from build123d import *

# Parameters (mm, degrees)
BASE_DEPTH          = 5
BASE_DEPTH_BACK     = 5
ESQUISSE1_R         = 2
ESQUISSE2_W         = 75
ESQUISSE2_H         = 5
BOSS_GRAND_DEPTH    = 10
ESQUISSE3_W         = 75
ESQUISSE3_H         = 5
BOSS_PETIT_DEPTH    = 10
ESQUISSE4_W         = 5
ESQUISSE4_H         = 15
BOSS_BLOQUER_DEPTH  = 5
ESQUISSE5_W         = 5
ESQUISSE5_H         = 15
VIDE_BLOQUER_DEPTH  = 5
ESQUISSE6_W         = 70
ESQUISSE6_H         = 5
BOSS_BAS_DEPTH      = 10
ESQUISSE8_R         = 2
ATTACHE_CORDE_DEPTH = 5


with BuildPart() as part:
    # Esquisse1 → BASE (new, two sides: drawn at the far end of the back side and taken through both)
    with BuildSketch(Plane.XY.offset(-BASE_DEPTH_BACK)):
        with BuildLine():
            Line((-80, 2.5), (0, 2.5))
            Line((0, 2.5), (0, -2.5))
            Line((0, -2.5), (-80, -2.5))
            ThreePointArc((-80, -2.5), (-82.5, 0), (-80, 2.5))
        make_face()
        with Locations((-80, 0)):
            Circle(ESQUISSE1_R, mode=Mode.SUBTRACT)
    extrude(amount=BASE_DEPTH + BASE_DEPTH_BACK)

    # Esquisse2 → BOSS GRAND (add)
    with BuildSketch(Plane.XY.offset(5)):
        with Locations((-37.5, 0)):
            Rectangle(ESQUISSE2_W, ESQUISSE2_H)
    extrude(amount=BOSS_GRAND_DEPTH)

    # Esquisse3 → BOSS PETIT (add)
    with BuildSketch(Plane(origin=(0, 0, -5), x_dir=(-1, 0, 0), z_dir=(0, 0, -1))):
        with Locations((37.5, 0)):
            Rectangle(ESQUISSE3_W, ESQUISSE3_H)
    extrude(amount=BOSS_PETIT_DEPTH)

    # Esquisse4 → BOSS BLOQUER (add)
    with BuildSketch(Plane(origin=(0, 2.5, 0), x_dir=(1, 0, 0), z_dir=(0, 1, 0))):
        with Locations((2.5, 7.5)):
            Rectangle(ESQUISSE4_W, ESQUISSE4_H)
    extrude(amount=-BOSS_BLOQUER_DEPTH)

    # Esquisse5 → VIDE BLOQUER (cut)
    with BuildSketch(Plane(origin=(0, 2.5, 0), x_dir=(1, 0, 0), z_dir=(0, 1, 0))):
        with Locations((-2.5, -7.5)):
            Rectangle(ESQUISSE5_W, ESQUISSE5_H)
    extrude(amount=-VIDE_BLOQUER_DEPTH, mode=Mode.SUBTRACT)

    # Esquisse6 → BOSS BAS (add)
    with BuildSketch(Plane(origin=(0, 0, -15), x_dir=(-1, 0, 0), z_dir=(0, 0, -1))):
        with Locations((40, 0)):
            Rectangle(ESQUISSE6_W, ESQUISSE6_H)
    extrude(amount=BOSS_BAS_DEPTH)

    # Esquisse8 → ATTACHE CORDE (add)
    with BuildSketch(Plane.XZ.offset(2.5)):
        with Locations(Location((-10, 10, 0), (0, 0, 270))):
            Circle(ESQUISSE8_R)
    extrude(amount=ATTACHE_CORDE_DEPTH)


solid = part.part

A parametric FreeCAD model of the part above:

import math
import FreeCAD as App
import Part
import Sketcher


def add_polygon(sketch, points):
    """Adds a closed chain of lines whose ends are joined by coincident constraints."""
    first, n = sketch.GeometryCount, len(points)
    for a, b in zip(points, points[1:] + points[:1]):
        sketch.addGeometry(Part.LineSegment(App.Vector(*a, 0), App.Vector(*b, 0)), False)
    for i in range(n):
        sketch.addConstraint(Sketcher.Constraint("Coincident", first + i, 2, first + (i + 1) % n, 1))

doc = App.newDocument("Part")
params = doc.addObject("Spreadsheet::Sheet", "Params")
for row, (alias, value) in enumerate([
    ("sketch1_diameter", "4 mm"),
    ("sketch1_radius", "2.5 mm"),
    ("sketch1_width", "80 mm"),
    ("pad1_length", "5 mm"),
    ("pad1_length2", "5 mm"),
    ("sketch2_width", "75 mm"),
    ("sketch2_height", "5 mm"),
    ("pad2_length", "10 mm"),
    ("sketch3_width", "75 mm"),
    ("sketch3_height", "5 mm"),
    ("pad3_length", "10 mm"),
    ("sketch4_width", "5 mm"),
    ("sketch4_height", "15 mm"),
    ("pad4_length", "5 mm"),
    ("sketch5_width", "5 mm"),
    ("sketch5_height", "15 mm"),
    ("pocket1_length", "5 mm"),
    ("sketch6_width", "70 mm"),
    ("sketch6_height", "5 mm"),
    ("pad5_length", "10 mm"),
    ("sketch7_diameter", "4 mm"),
    ("pad6_length", "5 mm"),
], start=1):
    params.set(f"A{row}", alias)
    params.set(f"B{row}", "=" + value)
    params.setAlias(f"B{row}", alias)

body = doc.addObject("PartDesign::Body", "Body")

# Sketch on XY plane
sketch1 = body.newObject("Sketcher::SketchObject", "Sketch")
sketch1.AttachmentSupport = (doc.getObject("XY_Plane"), [""])
sketch1.MapMode = "FlatFace"
sketch1.addGeometry([
    Part.LineSegment(App.Vector(0, 2.5, 0), App.Vector(-80, 2.5, 0)),  # 0
    Part.ArcOfCircle(Part.Circle(App.Vector(-80, 0, 0), App.Vector(0, 0, 1), 2.5), math.radians(90), math.radians(270)),  # 1
    Part.LineSegment(App.Vector(-80, -2.5, 0), App.Vector(0, -2.5, 0)),  # 2
    Part.LineSegment(App.Vector(0, -2.5, 0), App.Vector(0, 2.5, 0)),  # 3
    Part.Circle(App.Vector(-80, 0, 0), App.Vector(0, 0, 1), 2),  # 4
], False)
sketch1.addConstraint([
    Sketcher.Constraint("Tangent", 0, 2, 1, 1),
    Sketcher.Constraint("Tangent", 1, 2, 2, 1),
    Sketcher.Constraint("Coincident", 2, 2, 3, 1),
    Sketcher.Constraint("Coincident", 3, 2, 0, 1),
    Sketcher.Constraint("Horizontal", 0),
    Sketcher.Constraint("Horizontal", 2),
    Sketcher.Constraint("Vertical", 3),
    Sketcher.Constraint("Coincident", 4, 3, 1, 3),
    Sketcher.Constraint("Symmetric", 2, 2, 3, 2, -1, 1),
    Sketcher.Constraint("Diameter", 4, 4.0),
    Sketcher.Constraint("Radius", 1, 2.5),
    Sketcher.Constraint("DistanceX", 0, 2, 0, 1, 80.0),
])
sketch1.setExpression("Constraints[9]", "Params.sketch1_diameter")
sketch1.setExpression("Constraints[10]", "Params.sketch1_radius")
sketch1.setExpression("Constraints[11]", "Params.sketch1_width")
pad1 = body.newObject("PartDesign::Pad", "Pad")
pad1.Profile = sketch1
pad1.Type = "TwoLengths"
pad1.setExpression("Length", "Params.pad1_length")
pad1.setExpression("Length2", "Params.pad1_length2")

# Sketch on XY plane
sketch2 = body.newObject("Sketcher::SketchObject", "Sketch001")
sketch2.AttachmentSupport = (doc.getObject("XY_Plane"), [""])
sketch2.MapMode = "FlatFace"
sketch2.AttachmentOffset = App.Placement(App.Vector(0, 0, 5), App.Rotation())
add_polygon(sketch2, [(-75, 2), (-75, -2), (0, -2), (0, 2)])  # lines 0-3
sketch2.addConstraint([
    Sketcher.Constraint("Vertical", 0),
    Sketcher.Constraint("Horizontal", 1),
    Sketcher.Constraint("Vertical", 2),
    Sketcher.Constraint("Horizontal", 3),
    Sketcher.Constraint("Symmetric", 1, 2, 2, 2, -1, 1),
    Sketcher.Constraint("DistanceX", 1, 1, 1, 2, 75.0),
    Sketcher.Constraint("DistanceY", 0, 2, 0, 1, 5.0),
])
sketch2.setExpression("Constraints[9]", "Params.sketch2_width")
sketch2.setExpression("Constraints[10]", "Params.sketch2_height")
pad2 = body.newObject("PartDesign::Pad", "Pad001")
pad2.Profile = sketch2
pad2.setExpression("Length", "Params.pad2_length")

# Sketch on XY plane
sketch3 = body.newObject("Sketcher::SketchObject", "Sketch002")
sketch3.AttachmentSupport = (doc.getObject("XY_Plane"), [""])
sketch3.MapMode = "FlatFace"
sketch3.AttachmentOffset = App.Placement(App.Vector(0, 0, -5), App.Rotation())
add_polygon(sketch3, [(0, 2), (0, -2), (-75, -2), (-75, 2)])  # lines 0-3
sketch3.addConstraint([
    Sketcher.Constraint("Vertical", 0),
    Sketcher.Constraint("Horizontal", 1),
    Sketcher.Constraint("Vertical", 2),
    Sketcher.Constraint("Horizontal", 3),
    Sketcher.Constraint("Symmetric", 0, 2, 3, 2, -1, 1),
    Sketcher.Constraint("DistanceX", 1, 2, 1, 1, 75.0),
    Sketcher.Constraint("DistanceY", 0, 2, 0, 1, 5.0),
])
sketch3.setExpression("Constraints[9]", "Params.sketch3_width")
sketch3.setExpression("Constraints[10]", "Params.sketch3_height")
pad3 = body.newObject("PartDesign::Pad", "Pad002")
pad3.Profile = sketch3
pad3.setExpression("Length", "Params.pad3_length")
pad3.Reversed = True

# Sketch on XZ plane
sketch4 = body.newObject("Sketcher::SketchObject", "Sketch003")
sketch4.AttachmentSupport = (doc.getObject("XZ_Plane"), [""])
sketch4.MapMode = "FlatFace"
sketch4.AttachmentOffset = App.Placement(App.Vector(0, 0, -2.5), App.Rotation())
add_polygon(sketch4, [(0, -15), (0, 0), (5, 0), (5, -15)])  # lines 0-3
sketch4.addConstraint([
    Sketcher.Constraint("Vertical", 0),
    Sketcher.Constraint("Horizontal", 1),
    Sketcher.Constraint("Vertical", 2),
    Sketcher.Constraint("Horizontal", 3),
    Sketcher.Constraint("Coincident", 0, 2, -1, 1),
    Sketcher.Constraint("DistanceX", 1, 1, 1, 2, 5.0),
    Sketcher.Constraint("DistanceY", 0, 1, 0, 2, 15.0),
])
sketch4.setExpression("Constraints[9]", "Params.sketch4_width")
sketch4.setExpression("Constraints[10]", "Params.sketch4_height")
pad4 = body.newObject("PartDesign::Pad", "Pad003")
pad4.Profile = sketch4
pad4.setExpression("Length", "Params.pad4_length")

# Sketch on XZ plane
sketch5 = body.newObject("Sketcher::SketchObject", "Sketch004")
sketch5.AttachmentSupport = (doc.getObject("XZ_Plane"), [""])
sketch5.MapMode = "FlatFace"
sketch5.AttachmentOffset = App.Placement(App.Vector(0, 0, -2.5), App.Rotation())
add_polygon(sketch5, [(-5, 0), (-5, 15), (0, 15), (0, 0)])  # lines 0-3
sketch5.addConstraint([
    Sketcher.Constraint("Vertical", 0),
    Sketcher.Constraint("Horizontal", 1),
    Sketcher.Constraint("Vertical", 2),
    Sketcher.Constraint("Horizontal", 3),
    Sketcher.Constraint("Coincident", 2, 2, -1, 1),
    Sketcher.Constraint("DistanceX", 1, 1, 1, 2, 5.0),
    Sketcher.Constraint("DistanceY", 0, 1, 0, 2, 15.0),
])
sketch5.setExpression("Constraints[9]", "Params.sketch5_width")
sketch5.setExpression("Constraints[10]", "Params.sketch5_height")
pocket1 = body.newObject("PartDesign::Pocket", "Pocket")
pocket1.Profile = sketch5
pocket1.setExpression("Length", "Params.pocket1_length")
pocket1.Reversed = True

# Sketch on XY plane
sketch6 = body.newObject("Sketcher::SketchObject", "Sketch005")
sketch6.AttachmentSupport = (doc.getObject("XY_Plane"), [""])
sketch6.MapMode = "FlatFace"
sketch6.AttachmentOffset = App.Placement(App.Vector(0, 0, -15), App.Rotation())
add_polygon(sketch6, [(-5, 2), (-5, -2), (-75, -2), (-75, 2)])  # lines 0-3
sketch6.addConstraint([
    Sketcher.Constraint("Vertical", 0),
    Sketcher.Constraint("Horizontal", 1),
    Sketcher.Constraint("Vertical", 2),
    Sketcher.Constraint("Horizontal", 3),
    Sketcher.Constraint("DistanceX", 1, 2, 1, 1, 70.0),
    Sketcher.Constraint("DistanceY", 0, 2, 0, 1, 5.0),
    Sketcher.Constraint("DistanceX", 0, 2, -1, 1, 5.0),
    Sketcher.Constraint("DistanceY", 0, 2, -1, 1, 2.5),
])
sketch6.setExpression("Constraints[8]", "Params.sketch6_width")
sketch6.setExpression("Constraints[9]", "Params.sketch6_height")
pad5 = body.newObject("PartDesign::Pad", "Pad004")
pad5.Profile = sketch6
pad5.setExpression("Length", "Params.pad5_length")
pad5.Reversed = True

# Sketch on XZ plane
sketch7 = body.newObject("Sketcher::SketchObject", "Sketch006")
sketch7.AttachmentSupport = (doc.getObject("XZ_Plane"), [""])
sketch7.MapMode = "FlatFace"
sketch7.AttachmentOffset = App.Placement(App.Vector(0, 0, 2.5), App.Rotation())
sketch7.addGeometry(Part.Circle(App.Vector(-10, 10, 0), App.Vector(0, 0, 1), 2), False)
sketch7.addConstraint([
    Sketcher.Constraint("Diameter", 0, 4.0),
    Sketcher.Constraint("DistanceX", 0, 3, -1, 1, 10.0),
    Sketcher.Constraint("DistanceY", -1, 1, 0, 3, 10.0),
])
sketch7.setExpression("Constraints[0]", "Params.sketch7_diameter")
pad6 = body.newObject("PartDesign::Pad", "Pad005")
pad6.Profile = sketch7
pad6.setExpression("Length", "Params.pad6_length")

doc.recompute()
